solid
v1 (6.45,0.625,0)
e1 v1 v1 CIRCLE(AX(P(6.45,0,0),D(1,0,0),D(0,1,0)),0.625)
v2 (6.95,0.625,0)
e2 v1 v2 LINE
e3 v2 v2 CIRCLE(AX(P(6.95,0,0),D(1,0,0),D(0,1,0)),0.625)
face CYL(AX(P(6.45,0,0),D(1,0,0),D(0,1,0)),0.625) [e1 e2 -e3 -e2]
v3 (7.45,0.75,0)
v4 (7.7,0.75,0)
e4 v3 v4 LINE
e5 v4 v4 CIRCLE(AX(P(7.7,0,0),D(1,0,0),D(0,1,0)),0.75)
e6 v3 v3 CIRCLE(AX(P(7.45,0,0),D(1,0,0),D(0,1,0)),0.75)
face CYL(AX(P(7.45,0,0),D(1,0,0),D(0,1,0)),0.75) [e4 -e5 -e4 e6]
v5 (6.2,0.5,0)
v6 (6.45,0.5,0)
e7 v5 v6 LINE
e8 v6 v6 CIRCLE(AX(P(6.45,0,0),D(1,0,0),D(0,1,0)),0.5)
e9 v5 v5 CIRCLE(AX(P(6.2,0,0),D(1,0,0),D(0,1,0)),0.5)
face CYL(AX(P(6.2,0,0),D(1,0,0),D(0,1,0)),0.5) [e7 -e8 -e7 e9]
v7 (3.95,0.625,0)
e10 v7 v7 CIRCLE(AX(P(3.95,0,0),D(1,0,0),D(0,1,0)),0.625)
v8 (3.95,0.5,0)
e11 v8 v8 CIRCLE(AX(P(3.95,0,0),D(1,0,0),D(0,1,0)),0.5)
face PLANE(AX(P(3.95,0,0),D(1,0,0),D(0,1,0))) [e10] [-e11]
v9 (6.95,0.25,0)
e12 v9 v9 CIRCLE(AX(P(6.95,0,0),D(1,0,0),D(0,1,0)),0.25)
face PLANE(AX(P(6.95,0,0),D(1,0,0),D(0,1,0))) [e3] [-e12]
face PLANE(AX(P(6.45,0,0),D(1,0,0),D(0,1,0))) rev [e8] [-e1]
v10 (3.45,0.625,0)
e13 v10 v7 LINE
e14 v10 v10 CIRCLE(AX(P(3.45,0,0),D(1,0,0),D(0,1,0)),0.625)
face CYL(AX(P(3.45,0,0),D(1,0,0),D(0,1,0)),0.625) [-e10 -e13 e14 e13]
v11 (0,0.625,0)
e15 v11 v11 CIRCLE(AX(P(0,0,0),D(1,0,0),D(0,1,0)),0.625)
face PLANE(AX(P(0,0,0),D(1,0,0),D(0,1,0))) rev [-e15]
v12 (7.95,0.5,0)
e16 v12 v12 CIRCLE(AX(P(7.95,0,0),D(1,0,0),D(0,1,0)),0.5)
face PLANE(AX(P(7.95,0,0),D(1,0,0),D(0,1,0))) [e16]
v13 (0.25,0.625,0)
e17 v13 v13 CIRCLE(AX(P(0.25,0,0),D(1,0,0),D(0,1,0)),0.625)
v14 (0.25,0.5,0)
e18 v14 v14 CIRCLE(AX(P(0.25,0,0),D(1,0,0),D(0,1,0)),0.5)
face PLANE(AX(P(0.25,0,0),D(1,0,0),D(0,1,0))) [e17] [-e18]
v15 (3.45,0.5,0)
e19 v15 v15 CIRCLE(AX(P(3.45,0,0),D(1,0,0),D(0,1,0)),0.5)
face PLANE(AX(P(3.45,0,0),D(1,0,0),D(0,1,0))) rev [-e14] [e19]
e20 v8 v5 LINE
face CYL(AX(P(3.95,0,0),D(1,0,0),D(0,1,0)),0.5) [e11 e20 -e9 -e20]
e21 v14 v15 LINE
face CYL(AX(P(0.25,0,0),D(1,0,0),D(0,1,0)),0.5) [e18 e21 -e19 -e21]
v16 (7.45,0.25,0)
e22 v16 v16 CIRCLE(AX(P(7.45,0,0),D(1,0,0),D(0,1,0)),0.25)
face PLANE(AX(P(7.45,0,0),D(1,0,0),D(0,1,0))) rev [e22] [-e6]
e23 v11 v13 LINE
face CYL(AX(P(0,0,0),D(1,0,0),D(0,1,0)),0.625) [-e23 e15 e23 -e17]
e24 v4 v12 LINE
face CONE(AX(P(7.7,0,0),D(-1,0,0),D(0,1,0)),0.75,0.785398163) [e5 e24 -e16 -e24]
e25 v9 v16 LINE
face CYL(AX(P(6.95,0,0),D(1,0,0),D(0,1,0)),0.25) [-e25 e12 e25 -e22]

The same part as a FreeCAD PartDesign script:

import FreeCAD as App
import Part
import Sketcher
from FreeCAD import Vector
Q = App.Units.Quantity


def edges_at(feature, points):
    """Names of the edges that pass closest to the given points."""
    edges = feature.Shape.Edges
    near = lambda p: min(range(len(edges)), key=lambda i: edges[i].distToShape(Part.Vertex(*p))[0])
    return sorted({f"Edge{near(p) + 1}" for p in points})


def add_polygon(sketch, points):
    """Adds a closed chain of lines whose ends are joined by coincident constraints."""
    first, n = sketch.GeometryCount, len(points)
    for a, b in zip(points, points[1:] + points[:1]):
        sketch.addGeometry(Part.LineSegment(App.Vector(*a, 0), App.Vector(*b, 0)), False)
    for i in range(n):
        sketch.addConstraint(Sketcher.Constraint("Coincident", first + i, 2, first + (i + 1) % n, 1))

doc = App.newDocument("Part")
body = doc.addObject("PartDesign::Body", "Body")

sketch1 = body.newObject("Sketcher::SketchObject", "Sketch")
sketch1.AttachmentSupport = (doc.getObject("XY_Plane"), [""])
sketch1.MapMode = "FlatFace"
add_polygon(sketch1, [(0, 0.62), (0, 0), (7.95, 0), (7.95, 0.75), (7.45, 0.75), (7.45, 0.25), (6.95, 0.25), (6.95, 0.62), (6.45, 0.62), (6.45, 0.5), (3.95, 0.5), (3.95, 0.62), (3.45, 0.62), (3.45, 0.5), (0.25, 0.5), (0.25, 0.62)])
sketch1.addConstraint([
    Sketcher.Constraint("Vertical", 0),
    Sketcher.Constraint("Horizontal", 1),
    Sketcher.Constraint("Vertical", 2),
    Sketcher.Constraint("Horizontal", 3),
    Sketcher.Constraint("Vertical", 4),
    Sketcher.Constraint("Horizontal", 5),
    Sketcher.Constraint("Vertical", 6),
    Sketcher.Constraint("Horizontal", 7),
    Sketcher.Constraint("Vertical", 8),
    Sketcher.Constraint("Horizontal", 9),
    Sketcher.Constraint("Vertical", 10),
    Sketcher.Constraint("Horizontal", 11),
    Sketcher.Constraint("Vertical", 12),
    Sketcher.Constraint("Horizontal", 13),
    Sketcher.Constraint("Vertical", 14),
    Sketcher.Constraint("Horizontal", 15),
    Sketcher.Constraint("Coincident", 0, 2, -1, 1),
    Sketcher.Constraint("Horizontal", 7, 2, 10, 2),
    Sketcher.Constraint("Horizontal", 9, 2, 12, 2),
    Sketcher.Constraint("Horizontal", 11, 2, 14, 2),
    Sketcher.Constraint("Equal", 3, 5),
    Sketcher.Constraint("Equal", 5, 7),
    Sketcher.Constraint("Equal", 7, 11),
    Sketcher.Constraint("Equal", 11, 4),
    Sketcher.Constraint("DistanceX", 3, 2, 3, 1, Q("0.5 mm")),
    Sketcher.Constraint("DistanceY", 2, 1, 2, 2, Q("0.75 mm")),
    Sketcher.Constraint("DistanceY", -1, 1, 8, 2, Q("0.5 mm")),
    Sketcher.Constraint("DistanceX", 9, 2, 9, 1, Q("2.5 mm")),
    Sketcher.Constraint("DistanceX", 13, 2, 13, 1, Q("3.2 mm")),
    Sketcher.Constraint("DistanceX", 1, 1, 1, 2, Q("7.95 mm")),
    Sketcher.Constraint("DistanceY", 0, 2, 0, 1, Q("0.625 mm")),
])
revolution = body.newObject("PartDesign::Revolution", "Revolution")
revolution.Profile = sketch1
revolution.ReferenceAxis = (sketch1, ["H_Axis"])
revolution.Angle = 360
doc.recompute()

chamfer = body.newObject("PartDesign::Chamfer", "Chamfer")
chamfer.Base = (revolution, edges_at(revolution, [(7.95, -0.75, 0)]))
chamfer.Size = 0.25

doc.recompute()
